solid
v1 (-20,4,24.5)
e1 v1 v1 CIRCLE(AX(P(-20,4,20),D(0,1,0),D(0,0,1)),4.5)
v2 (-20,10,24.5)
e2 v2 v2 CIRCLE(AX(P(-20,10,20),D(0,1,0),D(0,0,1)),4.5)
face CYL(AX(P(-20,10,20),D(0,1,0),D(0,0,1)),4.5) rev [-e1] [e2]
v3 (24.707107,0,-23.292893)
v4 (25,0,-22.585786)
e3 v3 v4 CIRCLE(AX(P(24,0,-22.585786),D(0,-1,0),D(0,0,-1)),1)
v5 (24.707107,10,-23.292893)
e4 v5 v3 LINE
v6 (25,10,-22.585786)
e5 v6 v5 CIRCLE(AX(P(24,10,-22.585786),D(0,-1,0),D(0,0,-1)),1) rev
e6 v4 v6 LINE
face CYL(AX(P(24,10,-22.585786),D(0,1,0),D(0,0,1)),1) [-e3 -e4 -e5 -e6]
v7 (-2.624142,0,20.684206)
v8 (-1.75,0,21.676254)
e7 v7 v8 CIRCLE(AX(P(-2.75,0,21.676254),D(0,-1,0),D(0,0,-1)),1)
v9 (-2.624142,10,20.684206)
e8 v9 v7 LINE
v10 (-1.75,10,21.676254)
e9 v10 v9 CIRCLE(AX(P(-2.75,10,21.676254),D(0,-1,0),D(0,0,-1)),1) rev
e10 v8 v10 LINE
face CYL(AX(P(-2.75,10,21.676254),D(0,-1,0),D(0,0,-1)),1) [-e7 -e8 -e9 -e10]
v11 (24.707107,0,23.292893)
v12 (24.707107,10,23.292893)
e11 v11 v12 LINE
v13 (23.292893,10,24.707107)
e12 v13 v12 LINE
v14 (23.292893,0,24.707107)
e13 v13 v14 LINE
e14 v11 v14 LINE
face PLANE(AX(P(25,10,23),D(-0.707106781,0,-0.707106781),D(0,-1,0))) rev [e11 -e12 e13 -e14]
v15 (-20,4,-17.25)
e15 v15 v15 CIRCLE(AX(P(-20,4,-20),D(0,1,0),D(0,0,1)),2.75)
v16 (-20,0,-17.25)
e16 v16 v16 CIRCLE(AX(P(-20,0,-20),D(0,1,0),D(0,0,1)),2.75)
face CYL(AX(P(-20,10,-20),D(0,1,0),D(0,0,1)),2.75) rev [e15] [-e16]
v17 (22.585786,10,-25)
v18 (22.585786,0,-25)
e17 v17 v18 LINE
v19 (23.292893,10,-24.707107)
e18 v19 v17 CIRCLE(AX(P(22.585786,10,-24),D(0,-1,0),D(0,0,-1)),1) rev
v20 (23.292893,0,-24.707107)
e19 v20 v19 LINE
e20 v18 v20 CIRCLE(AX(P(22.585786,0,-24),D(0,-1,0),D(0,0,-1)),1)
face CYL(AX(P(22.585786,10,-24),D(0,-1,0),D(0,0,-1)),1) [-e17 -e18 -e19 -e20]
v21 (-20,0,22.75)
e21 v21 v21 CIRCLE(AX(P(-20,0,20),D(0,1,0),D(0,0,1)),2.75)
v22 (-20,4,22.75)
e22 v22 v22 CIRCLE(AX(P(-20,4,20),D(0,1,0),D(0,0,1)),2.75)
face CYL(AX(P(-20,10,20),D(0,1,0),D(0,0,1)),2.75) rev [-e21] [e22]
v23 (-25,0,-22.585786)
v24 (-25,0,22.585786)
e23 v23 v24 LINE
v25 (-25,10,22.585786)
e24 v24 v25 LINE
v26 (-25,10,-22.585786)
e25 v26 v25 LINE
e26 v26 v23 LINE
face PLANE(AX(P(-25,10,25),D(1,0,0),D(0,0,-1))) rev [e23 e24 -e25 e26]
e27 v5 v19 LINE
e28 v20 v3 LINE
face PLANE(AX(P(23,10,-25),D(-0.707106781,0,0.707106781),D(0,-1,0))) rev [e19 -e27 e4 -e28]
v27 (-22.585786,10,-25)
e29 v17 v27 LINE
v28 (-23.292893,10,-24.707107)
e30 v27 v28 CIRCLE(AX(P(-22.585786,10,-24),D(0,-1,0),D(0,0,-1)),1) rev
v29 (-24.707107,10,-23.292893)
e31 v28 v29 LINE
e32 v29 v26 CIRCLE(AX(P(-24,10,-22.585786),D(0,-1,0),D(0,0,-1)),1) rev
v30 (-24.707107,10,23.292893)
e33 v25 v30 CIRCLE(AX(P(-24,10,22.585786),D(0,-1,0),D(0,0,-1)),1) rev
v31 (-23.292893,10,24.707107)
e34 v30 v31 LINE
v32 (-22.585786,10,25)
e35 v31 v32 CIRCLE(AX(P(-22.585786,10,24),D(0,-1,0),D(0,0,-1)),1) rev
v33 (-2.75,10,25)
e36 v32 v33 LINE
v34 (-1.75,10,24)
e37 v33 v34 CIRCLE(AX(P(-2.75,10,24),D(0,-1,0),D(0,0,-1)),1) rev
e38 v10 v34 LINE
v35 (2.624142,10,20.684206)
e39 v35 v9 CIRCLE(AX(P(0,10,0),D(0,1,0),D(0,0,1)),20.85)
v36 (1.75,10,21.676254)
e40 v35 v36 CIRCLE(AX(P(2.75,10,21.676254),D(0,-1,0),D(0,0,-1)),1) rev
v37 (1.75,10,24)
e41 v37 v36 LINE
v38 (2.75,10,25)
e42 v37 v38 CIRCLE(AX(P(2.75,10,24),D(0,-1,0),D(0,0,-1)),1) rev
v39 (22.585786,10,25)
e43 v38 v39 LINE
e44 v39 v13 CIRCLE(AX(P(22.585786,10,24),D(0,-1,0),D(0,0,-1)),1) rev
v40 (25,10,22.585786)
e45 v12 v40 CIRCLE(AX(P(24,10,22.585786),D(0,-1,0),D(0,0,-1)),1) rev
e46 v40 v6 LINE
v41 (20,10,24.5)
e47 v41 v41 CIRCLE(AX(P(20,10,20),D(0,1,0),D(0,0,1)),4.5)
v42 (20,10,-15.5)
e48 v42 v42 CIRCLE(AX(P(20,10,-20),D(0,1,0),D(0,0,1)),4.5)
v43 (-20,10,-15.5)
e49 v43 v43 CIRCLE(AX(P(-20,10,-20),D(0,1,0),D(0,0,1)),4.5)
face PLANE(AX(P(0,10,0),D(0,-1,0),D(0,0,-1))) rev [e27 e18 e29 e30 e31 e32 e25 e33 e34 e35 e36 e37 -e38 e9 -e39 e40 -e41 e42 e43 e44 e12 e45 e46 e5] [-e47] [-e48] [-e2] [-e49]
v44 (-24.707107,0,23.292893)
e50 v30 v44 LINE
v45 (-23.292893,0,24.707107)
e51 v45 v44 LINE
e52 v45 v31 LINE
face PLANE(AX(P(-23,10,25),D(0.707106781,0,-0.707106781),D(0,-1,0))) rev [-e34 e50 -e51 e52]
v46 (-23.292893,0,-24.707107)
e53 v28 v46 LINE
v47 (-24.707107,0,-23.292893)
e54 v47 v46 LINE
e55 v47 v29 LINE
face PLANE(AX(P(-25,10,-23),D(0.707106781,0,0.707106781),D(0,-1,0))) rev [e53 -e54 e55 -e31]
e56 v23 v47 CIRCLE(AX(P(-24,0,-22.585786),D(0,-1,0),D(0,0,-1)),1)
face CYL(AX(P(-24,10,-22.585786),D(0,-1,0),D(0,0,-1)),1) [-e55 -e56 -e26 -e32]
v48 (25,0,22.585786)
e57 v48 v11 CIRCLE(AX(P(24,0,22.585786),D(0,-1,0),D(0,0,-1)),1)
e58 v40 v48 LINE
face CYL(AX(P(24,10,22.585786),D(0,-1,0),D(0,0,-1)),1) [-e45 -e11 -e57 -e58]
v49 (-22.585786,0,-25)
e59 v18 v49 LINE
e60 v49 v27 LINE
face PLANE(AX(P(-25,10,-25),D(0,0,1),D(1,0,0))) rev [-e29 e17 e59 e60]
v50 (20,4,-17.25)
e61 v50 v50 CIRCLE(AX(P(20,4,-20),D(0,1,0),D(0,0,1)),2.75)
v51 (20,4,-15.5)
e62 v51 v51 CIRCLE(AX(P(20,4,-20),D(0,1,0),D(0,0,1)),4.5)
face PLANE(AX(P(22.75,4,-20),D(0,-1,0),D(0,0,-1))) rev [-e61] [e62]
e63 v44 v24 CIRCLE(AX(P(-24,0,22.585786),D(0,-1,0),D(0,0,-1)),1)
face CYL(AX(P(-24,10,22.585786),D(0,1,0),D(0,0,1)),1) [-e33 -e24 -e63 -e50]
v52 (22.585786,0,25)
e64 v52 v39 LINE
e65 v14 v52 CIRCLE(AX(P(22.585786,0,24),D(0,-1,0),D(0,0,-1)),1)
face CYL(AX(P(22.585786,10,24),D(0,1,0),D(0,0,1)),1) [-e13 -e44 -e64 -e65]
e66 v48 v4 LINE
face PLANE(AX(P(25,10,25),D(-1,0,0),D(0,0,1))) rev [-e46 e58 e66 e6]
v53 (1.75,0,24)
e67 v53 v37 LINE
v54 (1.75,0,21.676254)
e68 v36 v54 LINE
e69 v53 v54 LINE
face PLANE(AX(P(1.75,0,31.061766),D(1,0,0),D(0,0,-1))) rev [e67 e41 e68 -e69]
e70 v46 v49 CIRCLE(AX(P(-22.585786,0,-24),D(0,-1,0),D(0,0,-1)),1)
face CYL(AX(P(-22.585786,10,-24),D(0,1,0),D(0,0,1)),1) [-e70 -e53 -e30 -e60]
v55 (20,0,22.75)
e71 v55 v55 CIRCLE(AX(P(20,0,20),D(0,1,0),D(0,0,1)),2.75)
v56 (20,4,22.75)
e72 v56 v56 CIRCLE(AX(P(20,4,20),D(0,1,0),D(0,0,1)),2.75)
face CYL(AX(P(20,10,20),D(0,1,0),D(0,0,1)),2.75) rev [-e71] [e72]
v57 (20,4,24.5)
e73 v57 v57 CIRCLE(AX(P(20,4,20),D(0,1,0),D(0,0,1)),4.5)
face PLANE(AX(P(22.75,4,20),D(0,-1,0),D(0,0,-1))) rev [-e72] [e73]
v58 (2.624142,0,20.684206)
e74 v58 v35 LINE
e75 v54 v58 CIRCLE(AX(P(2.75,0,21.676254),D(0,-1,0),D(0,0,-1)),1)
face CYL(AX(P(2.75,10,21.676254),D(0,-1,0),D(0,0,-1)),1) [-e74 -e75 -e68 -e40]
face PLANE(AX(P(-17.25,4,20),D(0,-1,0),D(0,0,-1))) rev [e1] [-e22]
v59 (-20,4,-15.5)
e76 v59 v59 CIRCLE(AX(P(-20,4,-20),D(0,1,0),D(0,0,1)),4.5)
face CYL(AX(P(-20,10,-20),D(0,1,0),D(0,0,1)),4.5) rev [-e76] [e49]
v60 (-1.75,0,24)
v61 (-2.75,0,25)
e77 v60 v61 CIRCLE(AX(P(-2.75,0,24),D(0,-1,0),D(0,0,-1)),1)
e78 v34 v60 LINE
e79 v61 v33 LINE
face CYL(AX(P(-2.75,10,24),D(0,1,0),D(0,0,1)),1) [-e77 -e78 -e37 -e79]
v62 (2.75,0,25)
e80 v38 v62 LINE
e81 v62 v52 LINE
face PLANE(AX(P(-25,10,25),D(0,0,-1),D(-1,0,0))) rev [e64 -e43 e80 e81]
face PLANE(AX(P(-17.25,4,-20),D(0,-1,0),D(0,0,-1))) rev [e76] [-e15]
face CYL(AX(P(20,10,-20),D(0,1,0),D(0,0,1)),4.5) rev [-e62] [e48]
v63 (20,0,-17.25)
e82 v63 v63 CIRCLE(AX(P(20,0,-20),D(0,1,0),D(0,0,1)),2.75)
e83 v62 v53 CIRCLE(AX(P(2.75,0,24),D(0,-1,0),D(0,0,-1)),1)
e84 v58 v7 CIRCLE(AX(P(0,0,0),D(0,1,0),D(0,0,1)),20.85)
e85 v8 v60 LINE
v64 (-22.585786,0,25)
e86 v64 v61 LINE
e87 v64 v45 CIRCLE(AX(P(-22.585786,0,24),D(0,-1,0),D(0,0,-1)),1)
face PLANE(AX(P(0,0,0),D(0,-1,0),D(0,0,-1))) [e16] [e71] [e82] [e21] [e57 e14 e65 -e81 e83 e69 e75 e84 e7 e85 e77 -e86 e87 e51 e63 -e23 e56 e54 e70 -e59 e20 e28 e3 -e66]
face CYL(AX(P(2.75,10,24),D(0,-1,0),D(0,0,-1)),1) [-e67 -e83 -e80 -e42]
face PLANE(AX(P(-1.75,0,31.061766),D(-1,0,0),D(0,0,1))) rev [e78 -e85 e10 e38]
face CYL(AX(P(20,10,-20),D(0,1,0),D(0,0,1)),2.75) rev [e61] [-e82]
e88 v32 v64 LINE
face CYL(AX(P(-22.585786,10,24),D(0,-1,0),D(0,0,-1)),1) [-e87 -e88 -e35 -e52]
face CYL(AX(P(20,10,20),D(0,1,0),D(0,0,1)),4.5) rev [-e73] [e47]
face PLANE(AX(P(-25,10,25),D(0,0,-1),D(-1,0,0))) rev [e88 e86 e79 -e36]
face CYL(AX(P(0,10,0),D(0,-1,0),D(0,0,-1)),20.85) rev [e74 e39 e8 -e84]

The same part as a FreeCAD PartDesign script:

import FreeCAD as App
import Part
import Sketcher
from FreeCAD import Vector


def edges_at(feature, points):
    """Names of the edges that pass closest to the given points."""
    edges = feature.Shape.Edges
    near = lambda p: min(range(len(edges)), key=lambda i: edges[i].distToShape(Part.Vertex(*p))[0])
    return sorted({f"Edge{near(p) + 1}" for p in points})

doc = App.newDocument("Part")
params = doc.addObject("Spreadsheet::Sheet", "Params")
for row, (alias, value) in enumerate([
    ("sketch1_diameter", "41.7 mm"),
    ("sketch1_width", "50 mm"),
    ("pad1_length", "10 mm"),
    ("sketch2_width", "3.5 mm"),
    ("pocket1_length", "10 mm"),
    ("chamfer_size", "2 mm"),
    ("fillet_radius", "1 mm"),
    ("sketch3_diameter", "5.2 mm"),
    ("hole_diameter", "5.2 mm"),
    ("hole_depth", "10 mm"),
    ("sketch4_diameter", "5.5 mm"),
    ("hole2_diameter", "5.5 mm"),
    ("hole2_cbore_diameter", "9 mm"),
    ("hole2_cbore_depth", "6 mm"),
], start=1):
    params.set(f"A{row}", alias)
    params.set(f"B{row}", "=" + value)
    params.setAlias(f"B{row}", alias)

body = doc.addObject("PartDesign::Body", "Body")

# Sketch on XZ plane
sketch1 = body.newObject("Sketcher::SketchObject", "Sketch")
sketch1.AttachmentSupport = (doc.getObject("XZ_Plane"), [""])
sketch1.MapMode = "FlatFace"
sketch1.addGeometry(Part.LineSegment(Vector(-25, -25, 0), Vector(-25, 25, 0)), False)
sketch1.addGeometry(Part.LineSegment(Vector(-25, 25, 0), Vector(25, 25, 0)), False)
sketch1.addGeometry(Part.LineSegment(Vector(25, 25, 0), Vector(25, -25, 0)), False)
sketch1.addGeometry(Part.LineSegment(Vector(25, -25, 0), Vector(-25, -25, 0)), False)
sketch1.addGeometry(Part.Circle(Vector(0, 0, 0), Vector(0, 0, 1), 21), False)
sketch1.addConstraint(Sketcher.Constraint("Coincident", 0, 2, 1, 1))
sketch1.addConstraint(Sketcher.Constraint("Coincident", 1, 2, 2, 1))
sketch1.addConstraint(Sketcher.Constraint("Coincident", 2, 2, 3, 1))
sketch1.addConstraint(Sketcher.Constraint("Coincident", 3, 2, 0, 1))
sketch1.addConstraint(Sketcher.Constraint("Vertical", 0))
sketch1.addConstraint(Sketcher.Constraint("Horizontal", 1))
sketch1.addConstraint(Sketcher.Constraint("Vertical", 2))
sketch1.addConstraint(Sketcher.Constraint("Horizontal", 3))
sketch1.addConstraint(Sketcher.Constraint("Coincident", 4, 3, -1, 1))
sketch1.addConstraint(Sketcher.Constraint("Symmetric", 0, 2, 2, 2, -1, 1))
sketch1.addConstraint(Sketcher.Constraint("Equal", 3, 0))
sketch1.addConstraint(Sketcher.Constraint("Diameter", 4, 41.7))
sketch1.addConstraint(Sketcher.Constraint("DistanceX", 1, 1, 1, 2, 50.0))
sketch1.setExpression("Constraints[11]", "Params.sketch1_diameter")
sketch1.setExpression("Constraints[12]", "Params.sketch1_width")
pad1 = body.newObject("PartDesign::Pad", "Pad")
pad1.Profile = sketch1
pad1.setExpression("Length", "Params.pad1_length")
pad1.Reversed = True

# Sketch on XZ plane
sketch2 = body.newObject("Sketcher::SketchObject", "Sketch001")
sketch2.AttachmentSupport = (doc.getObject("XZ_Plane"), [""])
sketch2.MapMode = "FlatFace"
sketch2.AttachmentOffset = App.Placement(Vector(0, 0, -10), App.Rotation())
sketch2.addGeometry(Part.LineSegment(Vector(-1.8, 18.9, 0), Vector(-1.8, 31.1, 0)), False)
sketch2.addGeometry(Part.LineSegment(Vector(-1.8, 31.1, 0), Vector(1.8, 31.1, 0)), False)
sketch2.addGeometry(Part.LineSegment(Vector(1.8, 31.1, 0), Vector(1.8, 18.9, 0)), False)
sketch2.addGeometry(Part.LineSegment(Vector(1.8, 18.9, 0), Vector(-1.8, 18.9, 0)), False)
sketch2.addConstraint(Sketcher.Constraint("Coincident", 0, 2, 1, 1))
sketch2.addConstraint(Sketcher.Constraint("Coincident", 1, 2, 2, 1))
sketch2.addConstraint(Sketcher.Constraint("Coincident", 2, 2, 3, 1))
sketch2.addConstraint(Sketcher.Constraint("Coincident", 3, 2, 0, 1))
sketch2.addConstraint(Sketcher.Constraint("Vertical", 0))
sketch2.addConstraint(Sketcher.Constraint("Horizontal", 1))
sketch2.addConstraint(Sketcher.Constraint("Vertical", 2))
sketch2.addConstraint(Sketcher.Constraint("Horizontal", 3))
sketch2.addConstraint(Sketcher.Constraint("DistanceX", 1, 1, 1, 2, 3.5))
sketch2.addConstraint(Sketcher.Constraint("DistanceX", 0, 2, -1, 1, 1.75))
sketch2.addConstraint(Sketcher.Constraint("DistanceY", 0, 1, 0, 2, 12.123532))
sketch2.addConstraint(Sketcher.Constraint("DistanceY", -1, 1, 0, 2, 31.061766))
sketch2.setExpression("Constraints[8]", "Params.sketch2_width")
pocket1 = body.newObject("PartDesign::Pocket", "Pocket")
pocket1.Profile = sketch2
pocket1.setExpression("Length", "Params.pocket1_length")
pocket1.Reversed = True
doc.recompute()

chamfer = body.newObject("PartDesign::Chamfer", "Chamfer")
chamfer.Base = (pocket1, edges_at(pocket1, [
    (25, 5, 25),
    (-25, 5, 25),
    (-25, 5, -25),
    (25, 5, -25),
]))
chamfer.setExpression("Size", "Params.chamfer_size")
doc.recompute()

fillet = body.newObject("PartDesign::Fillet", "Fillet")
fillet.Base = (chamfer, edges_at(chamfer, [
    (-1.75, 5, 20.776),
    (1.75, 5, 20.776),
    (1.75, 5, 25),
    (-1.75, 5, 25),
    (-25, 5, 23),
    (-25, 5, -23),
    (23, 5, -25),
    (-23, 5, -25),
    (-23, 5, 25),
    (25, 5, 23),
    (25, 5, -23),
    (23, 5, 25),
]))
fillet.setExpression("Radius", "Params.fillet_radius")

# Sketch on XZ plane
sketch3 = body.newObject("Sketcher::SketchObject", "Sketch002")
sketch3.AttachmentSupport = (doc.getObject("XZ_Plane"), [""])
sketch3.MapMode = "FlatFace"
sketch3.AttachmentOffset = App.Placement(Vector(0, 0, -10), App.Rotation())
sketch3.addGeometry(Part.Circle(Vector(-20, -20, 0), Vector(0, 0, 1), 2.6), False)
sketch3.addGeometry(Part.Circle(Vector(20, -20, 0), Vector(0, 0, 1), 2.6), False)
sketch3.addGeometry(Part.Circle(Vector(20, 20, 0), Vector(0, 0, 1), 2.6), False)
sketch3.addGeometry(Part.Circle(Vector(-20, 20, 0), Vector(0, 0, 1), 2.6), False)
sketch3.addConstraint(Sketcher.Constraint("Equal", 0, 1))
sketch3.addConstraint(Sketcher.Constraint("Equal", 1, 2))
sketch3.addConstraint(Sketcher.Constraint("Equal", 2, 3))
sketch3.addConstraint(Sketcher.Constraint("Symmetric", 0, 3, 2, 3, -1, 1))
sketch3.addConstraint(Sketcher.Constraint("Symmetric", 1, 3, 3, 3, -1, 1))
sketch3.addConstraint(Sketcher.Constraint("Symmetric", 0, 3, 1, 3, -2))
sketch3.addConstraint(Sketcher.Constraint("Diameter", 0, 5.2))
sketch3.addConstraint(Sketcher.Constraint("DistanceX", 0, 3, -1, 1, 20.0))
sketch3.addConstraint(Sketcher.Constraint("DistanceY", 0, 3, -1, 1, 20.0))
sketch3.setExpression("Constraints[6]", "Params.sketch3_diameter")
doc.recompute()
hole = body.newObject("PartDesign::Hole", "Hole")
hole.Profile = sketch3
hole.ThreadType = "None"
hole.setExpression("Diameter", "Params.hole_diameter")
hole.DepthType = "Dimension"
hole.setExpression("Depth", "Params.hole_depth")
hole.DrillPoint = "Angled"
hole.DrillPointAngle = 118
hole.Reversed = True

# Sketch on XZ plane
sketch4 = body.newObject("Sketcher::SketchObject", "Sketch003")
sketch4.AttachmentSupport = (doc.getObject("XZ_Plane"), [""])
sketch4.MapMode = "FlatFace"
sketch4.AttachmentOffset = App.Placement(Vector(0, 0, -10), App.Rotation())
sketch4.addGeometry(Part.Circle(Vector(-20, -20, 0), Vector(0, 0, 1), 2.8), False)
sketch4.addGeometry(Part.Circle(Vector(-20, 20, 0), Vector(0, 0, 1), 2.8), False)
sketch4.addGeometry(Part.Circle(Vector(20, 20, 0), Vector(0, 0, 1), 2.8), False)
sketch4.addGeometry(Part.Circle(Vector(20, -20, 0), Vector(0, 0, 1), 2.8), False)
sketch4.addConstraint(Sketcher.Constraint("Equal", 0, 1))
sketch4.addConstraint(Sketcher.Constraint("Equal", 1, 2))
sketch4.addConstraint(Sketcher.Constraint("Equal", 2, 3))
sketch4.addConstraint(Sketcher.Constraint("Symmetric", 0, 3, 2, 3, -1, 1))
sketch4.addConstraint(Sketcher.Constraint("Symmetric", 1, 3, 3, 3, -1, 1))
sketch4.addConstraint(Sketcher.Constraint("Symmetric", 1, 3, 2, 3, -2))
sketch4.addConstraint(Sketcher.Constraint("Diameter", 0, 5.5))
sketch4.addConstraint(Sketcher.Constraint("DistanceX", 0, 3, -1, 1, 20.0))
sketch4.addConstraint(Sketcher.Constraint("DistanceY", 0, 3, -1, 1, 20.0))
sketch4.setExpression("Constraints[6]", "Params.sketch4_diameter")
doc.recompute()
hole2 = body.newObject("PartDesign::Hole", "Hole001")
hole2.Profile = sketch4
hole2.ThreadType = "None"
hole2.setExpression("Diameter", "Params.hole2_diameter")
hole2.DepthType = "ThroughAll"
hole2.HoleCutType = "Counterbore"
hole2.setExpression("HoleCutDiameter", "Params.hole2_cbore_diameter")
hole2.setExpression("HoleCutDepth", "Params.hole2_cbore_depth")
hole2.Reversed = True

doc.recompute()
